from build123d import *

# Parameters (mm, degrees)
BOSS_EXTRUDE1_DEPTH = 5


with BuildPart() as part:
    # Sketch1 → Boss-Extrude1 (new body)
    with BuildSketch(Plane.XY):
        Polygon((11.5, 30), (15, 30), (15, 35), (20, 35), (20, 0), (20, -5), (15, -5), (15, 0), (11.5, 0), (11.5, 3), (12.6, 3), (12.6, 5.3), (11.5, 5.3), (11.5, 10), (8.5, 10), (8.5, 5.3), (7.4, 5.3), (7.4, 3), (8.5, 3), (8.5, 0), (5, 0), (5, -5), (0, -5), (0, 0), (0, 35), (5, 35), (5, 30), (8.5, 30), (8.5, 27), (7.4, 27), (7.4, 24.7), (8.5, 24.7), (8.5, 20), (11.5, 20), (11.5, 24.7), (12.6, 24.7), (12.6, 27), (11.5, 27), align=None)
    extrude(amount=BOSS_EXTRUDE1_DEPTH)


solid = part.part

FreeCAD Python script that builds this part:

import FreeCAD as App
import Part
import Sketcher

doc = App.newDocument("Part")
body = doc.addObject("PartDesign::Body", "Body")

sketch1 = body.newObject("Sketcher::SketchObject", "Sketch")
sketch1.AttachmentSupport = (doc.getObject("XY_Plane"), [""])
sketch1.MapMode = "FlatFace"
sketch1.addGeometry(Part.LineSegment(App.Vector(15, 30, 0), App.Vector(11.5, 30, 0)), False)
sketch1.addGeometry(Part.LineSegment(App.Vector(11.5, 30, 0), App.Vector(11.5, 27, 0)), False)
sketch1.addGeometry(Part.LineSegment(App.Vector(11.5, 27, 0), App.Vector(12.6, 27, 0)), False)
sketch1.addGeometry(Part.LineSegment(App.Vector(12.6, 27, 0), App.Vector(12.6, 24.7, 0)), False)
sketch1.addGeometry(Part.LineSegment(App.Vector(12.6, 24.7, 0), App.Vector(11.5, 24.7, 0)), False)
sketch1.addGeometry(Part.LineSegment(App.Vector(11.5, 24.7, 0), App.Vector(11.5, 20, 0)), False)
sketch1.addGeometry(Part.LineSegment(App.Vector(11.5, 20, 0), App.Vector(8.5, 20, 0)), False)
sketch1.addGeometry(Part.LineSegment(App.Vector(8.5, 20, 0), App.Vector(8.5, 24.7, 0)), False)
sketch1.addGeometry(Part.LineSegment(App.Vector(8.5, 24.7, 0), App.Vector(7.4, 24.7, 0)), False)
sketch1.addGeometry(Part.LineSegment(App.Vector(7.4, 24.7, 0), App.Vector(7.4, 27, 0)), False)
sketch1.addGeometry(Part.LineSegment(App.Vector(7.4, 27, 0), App.Vector(8.5, 27, 0)), False)
sketch1.addGeometry(Part.LineSegment(App.Vector(8.5, 27, 0), App.Vector(8.5, 30, 0)), False)
sketch1.addGeometry(Part.LineSegment(App.Vector(8.5, 30, 0), App.Vector(5, 30, 0)), False)
sketch1.addGeometry(Part.LineSegment(App.Vector(5, 30, 0), App.Vector(5, 35, 0)), False)
sketch1.addGeometry(Part.LineSegment(App.Vector(5, 35, 0), App.Vector(0, 35, 0)), False)
sketch1.addGeometry(Part.LineSegment(App.Vector(0, 35, 0), App.Vector(0, -5, 0)), False)
sketch1.addGeometry(Part.LineSegment(App.Vector(0, -5, 0), App.Vector(5, -5, 0)), False)
sketch1.addGeometry(Part.LineSegment(App.Vector(5, -5, 0), App.Vector(5, 0, 0)), False)
sketch1.addGeometry(Part.LineSegment(App.Vector(5, 0, 0), App.Vector(8.5, 0, 0)), False)
sketch1.addGeometry(Part.LineSegment(App.Vector(8.5, 0, 0), App.Vector(8.5, 3, 0)), False)
sketch1.addGeometry(Part.LineSegment(App.Vector(8.5, 3, 0), App.Vector(7.4, 3, 0)), False)
sketch1.addGeometry(Part.LineSegment(App.Vector(7.4, 3, 0), App.Vector(7.4, 5.3, 0)), False)
sketch1.addGeometry(Part.LineSegment(App.Vector(7.4, 5.3, 0), App.Vector(8.5, 5.3, 0)), False)
sketch1.addGeometry(Part.LineSegment(App.Vector(8.5, 5.3, 0), App.Vector(8.5, 10, 0)), False)
sketch1.addGeometry(Part.LineSegment(App.Vector(8.5, 10, 0), App.Vector(11.5, 10, 0)), False)
sketch1.addGeometry(Part.LineSegment(App.Vector(11.5, 10, 0), App.Vector(11.5, 5.3, 0)), False)
sketch1.addGeometry(Part.LineSegment(App.Vector(11.5, 5.3, 0), App.Vector(12.6, 5.3, 0)), False)
sketch1.addGeometry(Part.LineSegment(App.Vector(12.6, 5.3, 0), App.Vector(12.6, 3, 0)), False)
sketch1.addGeometry(Part.LineSegment(App.Vector(12.6, 3, 0), App.Vector(11.5, 3, 0)), False)
sketch1.addGeometry(Part.LineSegment(App.Vector(11.5, 3, 0), App.Vector(11.5, 0, 0)), False)
sketch1.addGeometry(Part.LineSegment(App.Vector(11.5, 0, 0), App.Vector(15, 0, 0)), False)
sketch1.addGeometry(Part.LineSegment(App.Vector(15, 0, 0), App.Vector(15, -5, 0)), False)
sketch1.addGeometry(Part.LineSegment(App.Vector(15, -5, 0), App.Vector(20, -5, 0)), False)
sketch1.addGeometry(Part.LineSegment(App.Vector(20, -5, 0), App.Vector(20, 35, 0)), False)
sketch1.addGeometry(Part.LineSegment(App.Vector(20, 35, 0), App.Vector(15, 35, 0)), False)
sketch1.addGeometry(Part.LineSegment(App.Vector(15, 35, 0), App.Vector(15, 30, 0)), False)
sketch1.addConstraint(Sketcher.Constraint("Coincident", 0, 2, 1, 1))
sketch1.addConstraint(Sketcher.Constraint("Coincident", 1, 2, 2, 1))
sketch1.addConstraint(Sketcher.Constraint("Coincident", 2, 2, 3, 1))
sketch1.addConstraint(Sketcher.Constraint("Coincident", 3, 2, 4, 1))
sketch1.addConstraint(Sketcher.Constraint("Coincident", 4, 2, 5, 1))
sketch1.addConstraint(Sketcher.Constraint("Coincident", 5, 2, 6, 1))
sketch1.addConstraint(Sketcher.Constraint("Coincident", 6, 2, 7, 1))
sketch1.addConstraint(Sketcher.Constraint("Coincident", 7, 2, 8, 1))
sketch1.addConstraint(Sketcher.Constraint("Coincident", 8, 2, 9, 1))
sketch1.addConstraint(Sketcher.Constraint("Coincident", 9, 2, 10, 1))
sketch1.addConstraint(Sketcher.Constraint("Coincident", 10, 2, 11, 1))
sketch1.addConstraint(Sketcher.Constraint("Coincident", 11, 2, 12, 1))
sketch1.addConstraint(Sketcher.Constraint("Coincident", 12, 2, 13, 1))
sketch1.addConstraint(Sketcher.Constraint("Coincident", 13, 2, 14, 1))
sketch1.addConstraint(Sketcher.Constraint("Coincident", 14, 2, 15, 1))
sketch1.addConstraint(Sketcher.Constraint("Coincident", 15, 2, 16, 1))
sketch1.addConstraint(Sketcher.Constraint("Coincident", 16, 2, 17, 1))
sketch1.addConstraint(Sketcher.Constraint("Coincident", 17, 2, 18, 1))
sketch1.addConstraint(Sketcher.Constraint("Coincident", 18, 2, 19, 1))
sketch1.addConstraint(Sketcher.Constraint("Coincident", 19, 2, 20, 1))
sketch1.addConstraint(Sketcher.Constraint("Coincident", 20, 2, 21, 1))
sketch1.addConstraint(Sketcher.Constraint("Coincident", 21, 2, 22, 1))
sketch1.addConstraint(Sketcher.Constraint("Coincident", 22, 2, 23, 1))
sketch1.addConstraint(Sketcher.Constraint("Coincident", 23, 2, 24, 1))
sketch1.addConstraint(Sketcher.Constraint("Coincident", 24, 2, 25, 1))
sketch1.addConstraint(Sketcher.Constraint("Coincident", 25, 2, 26, 1))
sketch1.addConstraint(Sketcher.Constraint("Coincident", 26, 2, 27, 1))
sketch1.addConstraint(Sketcher.Constraint("Coincident", 27, 2, 28, 1))
sketch1.addConstraint(Sketcher.Constraint("Coincident", 28, 2, 29, 1))
sketch1.addConstraint(Sketcher.Constraint("Coincident", 29, 2, 30, 1))
sketch1.addConstraint(Sketcher.Constraint("Coincident", 30, 2, 31, 1))
sketch1.addConstraint(Sketcher.Constraint("Coincident", 31, 2, 32, 1))
sketch1.addConstraint(Sketcher.Constraint("Coincident", 32, 2, 33, 1))
sketch1.addConstraint(Sketcher.Constraint("Coincident", 33, 2, 34, 1))
sketch1.addConstraint(Sketcher.Constraint("Coincident", 34, 2, 35, 1))
sketch1.addConstraint(Sketcher.Constraint("Coincident", 35, 2, 0, 1))
sketch1.addConstraint(Sketcher.Constraint("Horizontal", 0))
sketch1.addConstraint(Sketcher.Constraint("Vertical", 1))
sketch1.addConstraint(Sketcher.Constraint("Horizontal", 2))
sketch1.addConstraint(Sketcher.Constraint("Vertical", 3))
sketch1.addConstraint(Sketcher.Constraint("Horizontal", 4))
sketch1.addConstraint(Sketcher.Constraint("Vertical", 5))
sketch1.addConstraint(Sketcher.Constraint("Horizontal", 6))
sketch1.addConstraint(Sketcher.Constraint("Vertical", 7))
sketch1.addConstraint(Sketcher.Constraint("Horizontal", 8))
sketch1.addConstraint(Sketcher.Constraint("Vertical", 9))
sketch1.addConstraint(Sketcher.Constraint("Horizontal", 10))
sketch1.addConstraint(Sketcher.Constraint("Vertical", 11))
sketch1.addConstraint(Sketcher.Constraint("Horizontal", 12))
sketch1.addConstraint(Sketcher.Constraint("Vertical", 13))
sketch1.addConstraint(Sketcher.Constraint("Horizontal", 14))
sketch1.addConstraint(Sketcher.Constraint("Vertical", 15))
sketch1.addConstraint(Sketcher.Constraint("Horizontal", 16))
sketch1.addConstraint(Sketcher.Constraint("Vertical", 17))
sketch1.addConstraint(Sketcher.Constraint("Horizontal", 18))
sketch1.addConstraint(Sketcher.Constraint("Vertical", 19))
sketch1.addConstraint(Sketcher.Constraint("Horizontal", 20))
sketch1.addConstraint(Sketcher.Constraint("Vertical", 21))
sketch1.addConstraint(Sketcher.Constraint("Horizontal", 22))
sketch1.addConstraint(Sketcher.Constraint("Vertical", 23))
sketch1.addConstraint(Sketcher.Constraint("Horizontal", 24))
sketch1.addConstraint(Sketcher.Constraint("Vertical", 25))
sketch1.addConstraint(Sketcher.Constraint("Horizontal", 26))
sketch1.addConstraint(Sketcher.Constraint("Vertical", 27))
sketch1.addConstraint(Sketcher.Constraint("Horizontal", 28))
sketch1.addConstraint(Sketcher.Constraint("Vertical", 29))
sketch1.addConstraint(Sketcher.Constraint("Horizontal", 30))
sketch1.addConstraint(Sketcher.Constraint("Vertical", 31))
sketch1.addConstraint(Sketcher.Constraint("Horizontal", 32))
sketch1.addConstraint(Sketcher.Constraint("Vertical", 33))
sketch1.addConstraint(Sketcher.Constraint("Horizontal", 34))
sketch1.addConstraint(Sketcher.Constraint("Vertical", 35))
sketch1.addConstraint(Sketcher.Constraint("PointOnObject", 14, 2, -2))
sketch1.addConstraint(Sketcher.Constraint("PointOnObject", 17, 2, -1))
sketch1.addConstraint(Sketcher.Constraint("PointOnObject", 29, 2, -1))
sketch1.addConstraint(Sketcher.Constraint("Horizontal", 4, 2, 7, 2))
sketch1.addConstraint(Sketcher.Constraint("Horizontal", 2, 2, 9, 2))
sketch1.addConstraint(Sketcher.Constraint("Horizontal", 0, 2, 11, 2))
sketch1.addConstraint(Sketcher.Constraint("Horizontal", 22, 2, 25, 2))
sketch1.addConstraint(Sketcher.Constraint("Horizontal", 20, 2, 27, 2))
sketch1.addConstraint(Sketcher.Constraint("Horizontal", 16, 2, 31, 2))
sketch1.addConstraint(Sketcher.Constraint("Horizontal", 14, 2, 33, 2))
sketch1.addConstraint(Sketcher.Constraint("Vertical", 1, 2, 4, 2))
sketch1.addConstraint(Sketcher.Constraint("Vertical", 7, 2, 10, 2))
sketch1.addConstraint(Sketcher.Constraint("Vertical", 13, 2, 16, 2))
sketch1.addConstraint(Sketcher.Constraint("Vertical", 11, 2, 18, 2))
sketch1.addConstraint(Sketcher.Constraint("Vertical", 9, 2, 20, 2))
sketch1.addConstraint(Sketcher.Constraint("Vertical", 19, 2, 22, 2))
sketch1.addConstraint(Sketcher.Constraint("Vertical", 5, 2, 24, 2))
sketch1.addConstraint(Sketcher.Constraint("Vertical", 3, 2, 26, 2))
sketch1.addConstraint(Sketcher.Constraint("Vertical", 25, 2, 28, 2))
sketch1.addConstraint(Sketcher.Constraint("Vertical", 31, 2, 34, 2))
sketch1.addConstraint(Sketcher.Constraint("Equal", 4, 8))
sketch1.addConstraint(Sketcher.Constraint("Equal", 0, 12))
sketch1.addConstraint(Sketcher.Constraint("Equal", 16, 32))
sketch1.addConstraint(Sketcher.Constraint("Equal", 24, 1))
sketch1.addConstraint(Sketcher.Constraint("Equal", 34, 13))
sketch1.addConstraint(Sketcher.Constraint("Equal", 13, 17))
sketch1.addConstraint(Sketcher.Constraint("Equal", 11, 19))
sketch1.addConstraint(Sketcher.Constraint("Equal", 9, 21))
sketch1.addConstraint(Sketcher.Constraint("Equal", 7, 23))
sketch1.addConstraint(Sketcher.Constraint("DistanceX", 6, 2, 6, 1, 3.0))
sketch1.addConstraint(Sketcher.Constraint("DistanceX", 14, 2, 14, 1, 5.0))
sketch1.addConstraint(Sketcher.Constraint("DistanceY", 15, 2, 15, 1, 40.0))
sketch1.addConstraint(Sketcher.Constraint("DistanceX", 0, 2, 0, 1, 3.5))
sketch1.addConstraint(Sketcher.Constraint("DistanceX", 2, 1, 2, 2, 1.1))
sketch1.addConstraint(Sketcher.Constraint("DistanceY", 3, 2, 3, 1, 2.3))
sketch1.addConstraint(Sketcher.Constraint("DistanceY", 5, 2, 5, 1, 4.7))
pad1 = body.newObject("PartDesign::Pad", "Pad")
pad1.Profile = sketch1
pad1.Length = 5

doc.recompute()
